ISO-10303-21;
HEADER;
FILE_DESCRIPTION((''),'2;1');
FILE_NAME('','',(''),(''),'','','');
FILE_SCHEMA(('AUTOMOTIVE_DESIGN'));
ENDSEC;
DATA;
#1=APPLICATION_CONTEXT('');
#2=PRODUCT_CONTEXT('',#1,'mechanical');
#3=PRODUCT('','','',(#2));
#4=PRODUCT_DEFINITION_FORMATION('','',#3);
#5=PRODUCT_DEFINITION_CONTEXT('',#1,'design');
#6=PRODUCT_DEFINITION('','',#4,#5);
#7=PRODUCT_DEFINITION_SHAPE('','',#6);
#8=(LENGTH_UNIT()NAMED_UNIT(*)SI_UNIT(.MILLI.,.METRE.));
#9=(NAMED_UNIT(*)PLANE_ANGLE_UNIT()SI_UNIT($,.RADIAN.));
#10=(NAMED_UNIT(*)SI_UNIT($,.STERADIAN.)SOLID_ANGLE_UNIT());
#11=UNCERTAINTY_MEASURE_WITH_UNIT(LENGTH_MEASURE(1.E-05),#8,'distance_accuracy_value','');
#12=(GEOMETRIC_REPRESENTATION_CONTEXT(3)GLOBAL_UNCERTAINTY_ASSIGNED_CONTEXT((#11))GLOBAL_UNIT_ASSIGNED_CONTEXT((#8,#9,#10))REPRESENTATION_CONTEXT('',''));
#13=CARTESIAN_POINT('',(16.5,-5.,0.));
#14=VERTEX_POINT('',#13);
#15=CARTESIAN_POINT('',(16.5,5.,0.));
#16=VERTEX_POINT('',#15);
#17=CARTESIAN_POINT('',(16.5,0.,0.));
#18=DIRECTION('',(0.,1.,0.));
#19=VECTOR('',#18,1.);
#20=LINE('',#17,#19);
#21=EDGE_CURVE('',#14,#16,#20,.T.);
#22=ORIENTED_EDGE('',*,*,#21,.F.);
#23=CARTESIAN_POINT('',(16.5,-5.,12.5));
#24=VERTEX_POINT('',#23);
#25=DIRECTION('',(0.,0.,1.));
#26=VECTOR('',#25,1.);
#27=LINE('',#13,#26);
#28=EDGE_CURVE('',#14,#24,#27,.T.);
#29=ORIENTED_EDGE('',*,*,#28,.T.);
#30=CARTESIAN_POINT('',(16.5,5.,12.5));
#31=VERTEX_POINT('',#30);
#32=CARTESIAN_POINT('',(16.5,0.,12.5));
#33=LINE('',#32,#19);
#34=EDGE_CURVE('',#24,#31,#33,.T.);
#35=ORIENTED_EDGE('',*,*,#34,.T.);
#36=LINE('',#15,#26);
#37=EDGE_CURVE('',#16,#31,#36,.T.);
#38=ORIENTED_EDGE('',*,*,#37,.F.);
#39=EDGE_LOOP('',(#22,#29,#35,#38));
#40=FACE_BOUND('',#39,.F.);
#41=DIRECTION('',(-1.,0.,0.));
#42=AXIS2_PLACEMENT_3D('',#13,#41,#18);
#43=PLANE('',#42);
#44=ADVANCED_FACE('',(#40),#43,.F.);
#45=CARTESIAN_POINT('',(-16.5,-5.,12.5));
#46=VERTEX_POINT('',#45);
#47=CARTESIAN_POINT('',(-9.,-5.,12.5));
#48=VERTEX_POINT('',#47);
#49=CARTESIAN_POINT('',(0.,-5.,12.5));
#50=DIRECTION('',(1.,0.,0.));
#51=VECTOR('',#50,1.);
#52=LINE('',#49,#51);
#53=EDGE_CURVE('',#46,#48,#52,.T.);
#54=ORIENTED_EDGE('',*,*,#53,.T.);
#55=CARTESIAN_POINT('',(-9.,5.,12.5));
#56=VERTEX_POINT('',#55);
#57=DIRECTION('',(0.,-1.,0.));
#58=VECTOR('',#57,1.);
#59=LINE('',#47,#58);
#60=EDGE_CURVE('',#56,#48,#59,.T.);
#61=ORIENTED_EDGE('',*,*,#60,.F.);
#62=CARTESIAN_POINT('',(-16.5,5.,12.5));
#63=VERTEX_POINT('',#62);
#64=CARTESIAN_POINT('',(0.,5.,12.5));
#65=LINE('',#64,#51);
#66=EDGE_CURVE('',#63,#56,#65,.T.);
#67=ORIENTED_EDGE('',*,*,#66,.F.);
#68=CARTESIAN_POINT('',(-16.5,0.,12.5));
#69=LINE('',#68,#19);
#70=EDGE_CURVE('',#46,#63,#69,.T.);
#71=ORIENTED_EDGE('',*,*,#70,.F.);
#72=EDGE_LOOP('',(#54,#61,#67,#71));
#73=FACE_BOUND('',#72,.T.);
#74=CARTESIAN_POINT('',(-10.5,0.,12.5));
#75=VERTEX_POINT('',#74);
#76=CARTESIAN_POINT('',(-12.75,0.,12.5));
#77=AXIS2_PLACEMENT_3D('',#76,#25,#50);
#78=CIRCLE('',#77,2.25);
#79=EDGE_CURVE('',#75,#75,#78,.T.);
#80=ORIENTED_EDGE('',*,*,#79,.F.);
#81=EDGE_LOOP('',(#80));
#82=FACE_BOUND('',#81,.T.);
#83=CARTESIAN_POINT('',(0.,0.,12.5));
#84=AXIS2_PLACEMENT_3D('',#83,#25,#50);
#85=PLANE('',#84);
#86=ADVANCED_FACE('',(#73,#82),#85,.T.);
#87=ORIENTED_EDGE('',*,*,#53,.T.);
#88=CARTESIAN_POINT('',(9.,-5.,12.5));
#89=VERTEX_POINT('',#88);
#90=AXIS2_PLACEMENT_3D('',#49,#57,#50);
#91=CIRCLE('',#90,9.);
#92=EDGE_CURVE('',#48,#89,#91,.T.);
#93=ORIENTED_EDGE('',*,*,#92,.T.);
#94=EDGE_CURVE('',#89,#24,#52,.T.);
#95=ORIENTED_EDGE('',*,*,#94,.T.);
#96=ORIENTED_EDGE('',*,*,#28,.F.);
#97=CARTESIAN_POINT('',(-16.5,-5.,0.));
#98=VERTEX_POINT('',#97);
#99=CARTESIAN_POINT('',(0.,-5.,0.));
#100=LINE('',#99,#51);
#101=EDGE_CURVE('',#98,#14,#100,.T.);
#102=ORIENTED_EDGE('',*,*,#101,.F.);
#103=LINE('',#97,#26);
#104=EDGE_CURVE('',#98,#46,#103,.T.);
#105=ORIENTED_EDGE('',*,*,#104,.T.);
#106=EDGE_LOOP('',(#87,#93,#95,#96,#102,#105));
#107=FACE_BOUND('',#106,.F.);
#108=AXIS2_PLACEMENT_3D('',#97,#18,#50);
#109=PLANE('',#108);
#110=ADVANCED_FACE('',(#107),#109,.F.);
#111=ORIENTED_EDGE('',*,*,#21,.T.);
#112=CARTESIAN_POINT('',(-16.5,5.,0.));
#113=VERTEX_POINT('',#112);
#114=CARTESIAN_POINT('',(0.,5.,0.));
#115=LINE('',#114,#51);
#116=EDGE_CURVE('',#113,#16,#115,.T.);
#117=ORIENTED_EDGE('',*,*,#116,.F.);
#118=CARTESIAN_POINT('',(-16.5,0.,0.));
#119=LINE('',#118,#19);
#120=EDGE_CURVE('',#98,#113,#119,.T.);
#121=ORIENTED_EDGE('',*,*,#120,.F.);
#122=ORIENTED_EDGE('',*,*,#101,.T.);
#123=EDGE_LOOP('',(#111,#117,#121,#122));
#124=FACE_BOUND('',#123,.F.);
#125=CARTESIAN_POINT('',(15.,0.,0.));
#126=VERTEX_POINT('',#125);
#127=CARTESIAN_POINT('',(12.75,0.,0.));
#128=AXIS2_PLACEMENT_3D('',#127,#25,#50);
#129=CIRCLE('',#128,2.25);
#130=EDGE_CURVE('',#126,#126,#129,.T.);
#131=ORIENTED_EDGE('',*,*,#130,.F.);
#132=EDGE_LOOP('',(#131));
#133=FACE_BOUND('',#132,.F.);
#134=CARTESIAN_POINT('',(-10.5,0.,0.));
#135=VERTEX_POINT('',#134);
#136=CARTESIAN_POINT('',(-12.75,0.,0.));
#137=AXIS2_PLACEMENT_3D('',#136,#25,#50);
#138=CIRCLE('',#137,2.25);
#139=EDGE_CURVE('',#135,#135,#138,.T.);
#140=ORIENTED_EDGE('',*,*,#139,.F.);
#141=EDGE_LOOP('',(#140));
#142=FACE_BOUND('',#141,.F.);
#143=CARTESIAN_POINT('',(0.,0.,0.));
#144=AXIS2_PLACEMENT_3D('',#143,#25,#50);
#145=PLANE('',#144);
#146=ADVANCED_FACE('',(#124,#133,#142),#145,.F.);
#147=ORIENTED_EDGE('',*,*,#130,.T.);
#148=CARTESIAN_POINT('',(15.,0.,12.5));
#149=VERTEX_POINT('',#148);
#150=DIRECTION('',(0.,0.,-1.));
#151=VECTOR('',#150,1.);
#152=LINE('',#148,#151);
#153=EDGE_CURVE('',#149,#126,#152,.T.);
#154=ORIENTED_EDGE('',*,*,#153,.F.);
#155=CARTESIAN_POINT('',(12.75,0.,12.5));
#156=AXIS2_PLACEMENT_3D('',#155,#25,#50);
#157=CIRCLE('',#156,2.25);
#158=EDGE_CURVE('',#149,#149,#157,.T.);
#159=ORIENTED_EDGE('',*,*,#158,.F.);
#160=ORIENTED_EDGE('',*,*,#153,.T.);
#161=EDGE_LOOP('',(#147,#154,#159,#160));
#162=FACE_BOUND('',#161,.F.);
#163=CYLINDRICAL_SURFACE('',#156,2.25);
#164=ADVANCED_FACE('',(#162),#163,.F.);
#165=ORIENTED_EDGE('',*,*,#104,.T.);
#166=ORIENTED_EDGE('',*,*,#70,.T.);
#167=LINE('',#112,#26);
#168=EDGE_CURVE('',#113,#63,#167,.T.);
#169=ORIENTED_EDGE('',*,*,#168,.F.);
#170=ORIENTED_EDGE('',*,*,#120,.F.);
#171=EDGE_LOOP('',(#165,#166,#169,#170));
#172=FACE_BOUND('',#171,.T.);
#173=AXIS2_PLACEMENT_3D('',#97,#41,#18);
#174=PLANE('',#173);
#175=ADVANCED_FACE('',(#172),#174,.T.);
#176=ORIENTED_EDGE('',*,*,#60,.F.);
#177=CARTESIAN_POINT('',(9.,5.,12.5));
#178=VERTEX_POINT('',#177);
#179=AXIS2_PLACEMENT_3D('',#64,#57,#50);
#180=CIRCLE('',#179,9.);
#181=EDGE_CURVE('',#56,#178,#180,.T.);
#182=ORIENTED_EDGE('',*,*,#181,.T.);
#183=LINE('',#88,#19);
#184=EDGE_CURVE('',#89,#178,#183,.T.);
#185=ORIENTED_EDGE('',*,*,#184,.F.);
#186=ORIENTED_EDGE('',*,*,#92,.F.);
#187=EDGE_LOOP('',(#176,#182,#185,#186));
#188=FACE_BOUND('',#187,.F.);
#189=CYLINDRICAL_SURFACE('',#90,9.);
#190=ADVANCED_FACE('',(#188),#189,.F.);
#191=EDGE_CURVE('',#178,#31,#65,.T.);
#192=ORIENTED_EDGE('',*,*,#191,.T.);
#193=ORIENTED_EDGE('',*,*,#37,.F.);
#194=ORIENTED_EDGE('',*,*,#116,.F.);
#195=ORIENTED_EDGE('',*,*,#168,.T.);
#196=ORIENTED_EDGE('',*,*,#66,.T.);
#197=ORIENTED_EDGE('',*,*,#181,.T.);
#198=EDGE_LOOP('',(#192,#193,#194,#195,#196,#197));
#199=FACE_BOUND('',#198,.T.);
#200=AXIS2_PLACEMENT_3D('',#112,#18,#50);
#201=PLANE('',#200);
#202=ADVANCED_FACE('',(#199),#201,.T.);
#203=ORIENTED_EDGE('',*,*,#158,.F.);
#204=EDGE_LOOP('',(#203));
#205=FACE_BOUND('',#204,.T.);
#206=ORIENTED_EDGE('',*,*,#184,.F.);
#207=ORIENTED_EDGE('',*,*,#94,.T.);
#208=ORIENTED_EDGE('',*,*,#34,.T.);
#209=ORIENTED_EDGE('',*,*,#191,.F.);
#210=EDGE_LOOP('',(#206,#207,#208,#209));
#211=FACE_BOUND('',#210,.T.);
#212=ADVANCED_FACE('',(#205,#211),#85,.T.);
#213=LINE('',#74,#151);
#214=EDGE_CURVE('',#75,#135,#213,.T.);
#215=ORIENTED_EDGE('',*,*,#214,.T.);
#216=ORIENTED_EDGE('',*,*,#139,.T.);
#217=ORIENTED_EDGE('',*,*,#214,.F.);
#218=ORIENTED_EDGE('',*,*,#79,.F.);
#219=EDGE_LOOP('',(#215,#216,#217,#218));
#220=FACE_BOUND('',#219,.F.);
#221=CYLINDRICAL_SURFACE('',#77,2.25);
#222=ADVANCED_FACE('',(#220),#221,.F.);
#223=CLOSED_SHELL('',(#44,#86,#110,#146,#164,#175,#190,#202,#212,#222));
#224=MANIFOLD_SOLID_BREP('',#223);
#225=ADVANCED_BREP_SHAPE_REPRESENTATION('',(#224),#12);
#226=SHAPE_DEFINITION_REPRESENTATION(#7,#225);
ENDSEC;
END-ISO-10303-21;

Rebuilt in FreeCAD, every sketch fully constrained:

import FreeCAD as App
import Part
import Sketcher

doc = App.newDocument("Part")
params = doc.addObject("Spreadsheet::Sheet", "Params")
for row, (alias, value) in enumerate([
    ("sketch1_width", "33 mm"),
    ("sketch1_height", "10 mm"),
    ("pad1_length", "12.5 mm"),
    ("sketch2_diameter", "18 mm"),
    ("pocket1_length", "10 mm"),
    ("sketch3_diameter", "4.5 mm"),
    ("pocket2_length", "12.5 mm"),
], start=1):
    params.set(f"A{row}", alias)
    params.set(f"B{row}", "=" + value)
    params.setAlias(f"B{row}", alias)

body = doc.addObject("PartDesign::Body", "Body")

# Sketch on XY plane
sketch1 = body.newObject("Sketcher::SketchObject", "Sketch")
sketch1.AttachmentSupport = (doc.getObject("XY_Plane"), [""])
sketch1.MapMode = "FlatFace"
sketch1.addGeometry(Part.LineSegment(App.Vector(-16, 5, 0), App.Vector(-16, -5, 0)), False)
sketch1.addGeometry(Part.LineSegment(App.Vector(-16, -5, 0), App.Vector(16, -5, 0)), False)
sketch1.addGeometry(Part.LineSegment(App.Vector(16, -5, 0), App.Vector(16, 5, 0)), False)
sketch1.addGeometry(Part.LineSegment(App.Vector(16, 5, 0), App.Vector(-16, 5, 0)), False)
sketch1.addConstraint(Sketcher.Constraint("Coincident", 0, 2, 1, 1))
sketch1.addConstraint(Sketcher.Constraint("Coincident", 1, 2, 2, 1))
sketch1.addConstraint(Sketcher.Constraint("Coincident", 2, 2, 3, 1))
sketch1.addConstraint(Sketcher.Constraint("Coincident", 3, 2, 0, 1))
sketch1.addConstraint(Sketcher.Constraint("Vertical", 0))
sketch1.addConstraint(Sketcher.Constraint("Horizontal", 1))
sketch1.addConstraint(Sketcher.Constraint("Vertical", 2))
sketch1.addConstraint(Sketcher.Constraint("Horizontal", 3))
sketch1.addConstraint(Sketcher.Constraint("Symmetric", 0, 2, 2, 2, -1, 1))
sketch1.addConstraint(Sketcher.Constraint("DistanceX", 1, 1, 1, 2, 33.0))
sketch1.addConstraint(Sketcher.Constraint("DistanceY", 0, 2, 0, 1, 10.0))
sketch1.setExpression("Constraints[9]", "Params.sketch1_width")
sketch1.setExpression("Constraints[10]", "Params.sketch1_height")
pad1 = body.newObject("PartDesign::Pad", "Pad")
pad1.Profile = sketch1
pad1.setExpression("Length", "Params.pad1_length")

# Sketch on XZ plane
sketch2 = body.newObject("Sketcher::SketchObject", "Sketch001")
sketch2.AttachmentSupport = (doc.getObject("XZ_Plane"), [""])
sketch2.MapMode = "FlatFace"
sketch2.AttachmentOffset = App.Placement(App.Vector(0, 0, 5), App.Rotation())
sketch2.addGeometry(Part.Circle(App.Vector(0, 12, 0), App.Vector(0, 0, 1), 9), False)
sketch2.addConstraint(Sketcher.Constraint("PointOnObject", 0, 3, -2))
sketch2.addConstraint(Sketcher.Constraint("Diameter", 0, 18.0))
sketch2.addConstraint(Sketcher.Constraint("DistanceY", -1, 1, 0, 3, 12.5))
sketch2.setExpression("Constraints[1]", "Params.sketch2_diameter")
pocket1 = body.newObject("PartDesign::Pocket", "Pocket")
pocket1.Profile = sketch2
pocket1.setExpression("Length", "Params.pocket1_length")

# Sketch on XY plane
sketch3 = body.newObject("Sketcher::SketchObject", "Sketch002")
sketch3.AttachmentSupport = (doc.getObject("XY_Plane"), [""])
sketch3.MapMode = "FlatFace"
sketch3.AttachmentOffset = App.Placement(App.Vector(0, 0, 12.5), App.Rotation())
sketch3.addGeometry(Part.Circle(App.Vector(-12.8, 0, 0), App.Vector(0, 0, 1), 2.2), False)
sketch3.addGeometry(Part.Circle(App.Vector(12.8, 0, 0), App.Vector(0, 0, 1), 2.2), False)
sketch3.addConstraint(Sketcher.Constraint("Equal", 0, 1))
sketch3.addConstraint(Sketcher.Constraint("Symmetric", 0, 3, 1, 3, -1, 1))
sketch3.addConstraint(Sketcher.Constraint("PointOnObject", 0, 3, -1))
sketch3.addConstraint(Sketcher.Constraint("Diameter", 0, 4.5))
sketch3.addConstraint(Sketcher.Constraint("DistanceX", 0, 3, 1, 3, 25.5))
sketch3.setExpression("Constraints[3]", "Params.sketch3_diameter")
pocket2 = body.newObject("PartDesign::Pocket", "Pocket001")
pocket2.Profile = sketch3
pocket2.setExpression("Length", "Params.pocket2_length")

doc.recompute()
